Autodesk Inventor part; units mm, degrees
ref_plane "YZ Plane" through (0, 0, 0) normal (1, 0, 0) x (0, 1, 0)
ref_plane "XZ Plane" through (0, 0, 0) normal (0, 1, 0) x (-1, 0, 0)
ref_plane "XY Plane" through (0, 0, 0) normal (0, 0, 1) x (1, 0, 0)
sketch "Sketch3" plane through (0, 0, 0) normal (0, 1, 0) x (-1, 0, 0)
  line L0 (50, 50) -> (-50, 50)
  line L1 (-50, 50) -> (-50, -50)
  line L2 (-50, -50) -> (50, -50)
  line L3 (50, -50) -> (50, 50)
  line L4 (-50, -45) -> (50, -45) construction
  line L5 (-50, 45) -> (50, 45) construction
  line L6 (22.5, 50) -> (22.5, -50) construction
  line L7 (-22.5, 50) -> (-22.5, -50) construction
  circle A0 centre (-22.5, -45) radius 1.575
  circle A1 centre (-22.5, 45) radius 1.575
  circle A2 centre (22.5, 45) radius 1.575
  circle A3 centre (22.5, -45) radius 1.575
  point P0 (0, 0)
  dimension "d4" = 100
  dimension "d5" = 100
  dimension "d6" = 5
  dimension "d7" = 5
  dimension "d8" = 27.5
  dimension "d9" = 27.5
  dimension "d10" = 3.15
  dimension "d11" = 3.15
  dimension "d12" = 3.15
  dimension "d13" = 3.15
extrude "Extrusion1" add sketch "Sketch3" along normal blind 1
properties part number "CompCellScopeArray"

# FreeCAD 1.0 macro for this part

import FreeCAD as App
import Part
import Sketcher


def add_polygon(sketch, points):
    """Adds a closed chain of lines whose ends are joined by coincident constraints."""
    first, n = sketch.GeometryCount, len(points)
    for a, b in zip(points, points[1:] + points[:1]):
        sketch.addGeometry(Part.LineSegment(App.Vector(*a, 0), App.Vector(*b, 0)), False)
    for i in range(n):
        sketch.addConstraint(Sketcher.Constraint("Coincident", first + i, 2, first + (i + 1) % n, 1))

doc = App.newDocument("Part")
body = doc.addObject("PartDesign::Body", "Body")

# Sketch on XZ plane
sketch1 = body.newObject("Sketcher::SketchObject", "Sketch")
sketch1.AttachmentSupport = (doc.getObject("XZ_Plane"), [""])
sketch1.MapMode = "FlatFace"
add_polygon(sketch1, [(-50, -50), (-50, 50), (50, 50), (50, -50)])  # lines 0-3
sketch1.addGeometry(Part.Circle(App.Vector(22.5, -45, 0), App.Vector(0, 0, 1), 1.6), False)  # 4
sketch1.addGeometry(Part.Circle(App.Vector(-22.5, -45, 0), App.Vector(0, 0, 1), 1.6), False)  # 5
sketch1.addGeometry(Part.Circle(App.Vector(22.5, 45, 0), App.Vector(0, 0, 1), 1.6), False)  # 6
sketch1.addGeometry(Part.Circle(App.Vector(-22.5, 45, 0), App.Vector(0, 0, 1), 1.6), False)  # 7
sketch1.addConstraint(Sketcher.Constraint("Vertical", 0))
sketch1.addConstraint(Sketcher.Constraint("Horizontal", 1))
sketch1.addConstraint(Sketcher.Constraint("Vertical", 2))
sketch1.addConstraint(Sketcher.Constraint("Horizontal", 3))
sketch1.addConstraint(Sketcher.Constraint("Equal", 4, 5))
sketch1.addConstraint(Sketcher.Constraint("Equal", 5, 6))
sketch1.addConstraint(Sketcher.Constraint("Equal", 6, 7))
sketch1.addConstraint(Sketcher.Constraint("Symmetric", 5, 3, 6, 3, -1, 1))
sketch1.addConstraint(Sketcher.Constraint("Symmetric", 4, 3, 7, 3, -1, 1))
sketch1.addConstraint(Sketcher.Constraint("Symmetric", 0, 2, 2, 2, -1, 1))
sketch1.addConstraint(Sketcher.Constraint("Symmetric", 4, 3, 5, 3, -2))
sketch1.addConstraint(Sketcher.Constraint("Equal", 3, 0))
sketch1.addConstraint(Sketcher.Constraint("Diameter", 4, 3.15))
sketch1.addConstraint(Sketcher.Constraint("DistanceX", 1, 1, 1, 2, 100.0))
sketch1.addConstraint(Sketcher.Constraint("DistanceY", 7, 3, 0, 2, 5.0))
sketch1.addConstraint(Sketcher.Constraint("DistanceX", 0, 2, 7, 3, 27.5))
pad1 = body.newObject("PartDesign::Pad", "Pad")
pad1.Profile = sketch1
pad1.Length = 1
pad1.Reversed = True

doc.recompute()
